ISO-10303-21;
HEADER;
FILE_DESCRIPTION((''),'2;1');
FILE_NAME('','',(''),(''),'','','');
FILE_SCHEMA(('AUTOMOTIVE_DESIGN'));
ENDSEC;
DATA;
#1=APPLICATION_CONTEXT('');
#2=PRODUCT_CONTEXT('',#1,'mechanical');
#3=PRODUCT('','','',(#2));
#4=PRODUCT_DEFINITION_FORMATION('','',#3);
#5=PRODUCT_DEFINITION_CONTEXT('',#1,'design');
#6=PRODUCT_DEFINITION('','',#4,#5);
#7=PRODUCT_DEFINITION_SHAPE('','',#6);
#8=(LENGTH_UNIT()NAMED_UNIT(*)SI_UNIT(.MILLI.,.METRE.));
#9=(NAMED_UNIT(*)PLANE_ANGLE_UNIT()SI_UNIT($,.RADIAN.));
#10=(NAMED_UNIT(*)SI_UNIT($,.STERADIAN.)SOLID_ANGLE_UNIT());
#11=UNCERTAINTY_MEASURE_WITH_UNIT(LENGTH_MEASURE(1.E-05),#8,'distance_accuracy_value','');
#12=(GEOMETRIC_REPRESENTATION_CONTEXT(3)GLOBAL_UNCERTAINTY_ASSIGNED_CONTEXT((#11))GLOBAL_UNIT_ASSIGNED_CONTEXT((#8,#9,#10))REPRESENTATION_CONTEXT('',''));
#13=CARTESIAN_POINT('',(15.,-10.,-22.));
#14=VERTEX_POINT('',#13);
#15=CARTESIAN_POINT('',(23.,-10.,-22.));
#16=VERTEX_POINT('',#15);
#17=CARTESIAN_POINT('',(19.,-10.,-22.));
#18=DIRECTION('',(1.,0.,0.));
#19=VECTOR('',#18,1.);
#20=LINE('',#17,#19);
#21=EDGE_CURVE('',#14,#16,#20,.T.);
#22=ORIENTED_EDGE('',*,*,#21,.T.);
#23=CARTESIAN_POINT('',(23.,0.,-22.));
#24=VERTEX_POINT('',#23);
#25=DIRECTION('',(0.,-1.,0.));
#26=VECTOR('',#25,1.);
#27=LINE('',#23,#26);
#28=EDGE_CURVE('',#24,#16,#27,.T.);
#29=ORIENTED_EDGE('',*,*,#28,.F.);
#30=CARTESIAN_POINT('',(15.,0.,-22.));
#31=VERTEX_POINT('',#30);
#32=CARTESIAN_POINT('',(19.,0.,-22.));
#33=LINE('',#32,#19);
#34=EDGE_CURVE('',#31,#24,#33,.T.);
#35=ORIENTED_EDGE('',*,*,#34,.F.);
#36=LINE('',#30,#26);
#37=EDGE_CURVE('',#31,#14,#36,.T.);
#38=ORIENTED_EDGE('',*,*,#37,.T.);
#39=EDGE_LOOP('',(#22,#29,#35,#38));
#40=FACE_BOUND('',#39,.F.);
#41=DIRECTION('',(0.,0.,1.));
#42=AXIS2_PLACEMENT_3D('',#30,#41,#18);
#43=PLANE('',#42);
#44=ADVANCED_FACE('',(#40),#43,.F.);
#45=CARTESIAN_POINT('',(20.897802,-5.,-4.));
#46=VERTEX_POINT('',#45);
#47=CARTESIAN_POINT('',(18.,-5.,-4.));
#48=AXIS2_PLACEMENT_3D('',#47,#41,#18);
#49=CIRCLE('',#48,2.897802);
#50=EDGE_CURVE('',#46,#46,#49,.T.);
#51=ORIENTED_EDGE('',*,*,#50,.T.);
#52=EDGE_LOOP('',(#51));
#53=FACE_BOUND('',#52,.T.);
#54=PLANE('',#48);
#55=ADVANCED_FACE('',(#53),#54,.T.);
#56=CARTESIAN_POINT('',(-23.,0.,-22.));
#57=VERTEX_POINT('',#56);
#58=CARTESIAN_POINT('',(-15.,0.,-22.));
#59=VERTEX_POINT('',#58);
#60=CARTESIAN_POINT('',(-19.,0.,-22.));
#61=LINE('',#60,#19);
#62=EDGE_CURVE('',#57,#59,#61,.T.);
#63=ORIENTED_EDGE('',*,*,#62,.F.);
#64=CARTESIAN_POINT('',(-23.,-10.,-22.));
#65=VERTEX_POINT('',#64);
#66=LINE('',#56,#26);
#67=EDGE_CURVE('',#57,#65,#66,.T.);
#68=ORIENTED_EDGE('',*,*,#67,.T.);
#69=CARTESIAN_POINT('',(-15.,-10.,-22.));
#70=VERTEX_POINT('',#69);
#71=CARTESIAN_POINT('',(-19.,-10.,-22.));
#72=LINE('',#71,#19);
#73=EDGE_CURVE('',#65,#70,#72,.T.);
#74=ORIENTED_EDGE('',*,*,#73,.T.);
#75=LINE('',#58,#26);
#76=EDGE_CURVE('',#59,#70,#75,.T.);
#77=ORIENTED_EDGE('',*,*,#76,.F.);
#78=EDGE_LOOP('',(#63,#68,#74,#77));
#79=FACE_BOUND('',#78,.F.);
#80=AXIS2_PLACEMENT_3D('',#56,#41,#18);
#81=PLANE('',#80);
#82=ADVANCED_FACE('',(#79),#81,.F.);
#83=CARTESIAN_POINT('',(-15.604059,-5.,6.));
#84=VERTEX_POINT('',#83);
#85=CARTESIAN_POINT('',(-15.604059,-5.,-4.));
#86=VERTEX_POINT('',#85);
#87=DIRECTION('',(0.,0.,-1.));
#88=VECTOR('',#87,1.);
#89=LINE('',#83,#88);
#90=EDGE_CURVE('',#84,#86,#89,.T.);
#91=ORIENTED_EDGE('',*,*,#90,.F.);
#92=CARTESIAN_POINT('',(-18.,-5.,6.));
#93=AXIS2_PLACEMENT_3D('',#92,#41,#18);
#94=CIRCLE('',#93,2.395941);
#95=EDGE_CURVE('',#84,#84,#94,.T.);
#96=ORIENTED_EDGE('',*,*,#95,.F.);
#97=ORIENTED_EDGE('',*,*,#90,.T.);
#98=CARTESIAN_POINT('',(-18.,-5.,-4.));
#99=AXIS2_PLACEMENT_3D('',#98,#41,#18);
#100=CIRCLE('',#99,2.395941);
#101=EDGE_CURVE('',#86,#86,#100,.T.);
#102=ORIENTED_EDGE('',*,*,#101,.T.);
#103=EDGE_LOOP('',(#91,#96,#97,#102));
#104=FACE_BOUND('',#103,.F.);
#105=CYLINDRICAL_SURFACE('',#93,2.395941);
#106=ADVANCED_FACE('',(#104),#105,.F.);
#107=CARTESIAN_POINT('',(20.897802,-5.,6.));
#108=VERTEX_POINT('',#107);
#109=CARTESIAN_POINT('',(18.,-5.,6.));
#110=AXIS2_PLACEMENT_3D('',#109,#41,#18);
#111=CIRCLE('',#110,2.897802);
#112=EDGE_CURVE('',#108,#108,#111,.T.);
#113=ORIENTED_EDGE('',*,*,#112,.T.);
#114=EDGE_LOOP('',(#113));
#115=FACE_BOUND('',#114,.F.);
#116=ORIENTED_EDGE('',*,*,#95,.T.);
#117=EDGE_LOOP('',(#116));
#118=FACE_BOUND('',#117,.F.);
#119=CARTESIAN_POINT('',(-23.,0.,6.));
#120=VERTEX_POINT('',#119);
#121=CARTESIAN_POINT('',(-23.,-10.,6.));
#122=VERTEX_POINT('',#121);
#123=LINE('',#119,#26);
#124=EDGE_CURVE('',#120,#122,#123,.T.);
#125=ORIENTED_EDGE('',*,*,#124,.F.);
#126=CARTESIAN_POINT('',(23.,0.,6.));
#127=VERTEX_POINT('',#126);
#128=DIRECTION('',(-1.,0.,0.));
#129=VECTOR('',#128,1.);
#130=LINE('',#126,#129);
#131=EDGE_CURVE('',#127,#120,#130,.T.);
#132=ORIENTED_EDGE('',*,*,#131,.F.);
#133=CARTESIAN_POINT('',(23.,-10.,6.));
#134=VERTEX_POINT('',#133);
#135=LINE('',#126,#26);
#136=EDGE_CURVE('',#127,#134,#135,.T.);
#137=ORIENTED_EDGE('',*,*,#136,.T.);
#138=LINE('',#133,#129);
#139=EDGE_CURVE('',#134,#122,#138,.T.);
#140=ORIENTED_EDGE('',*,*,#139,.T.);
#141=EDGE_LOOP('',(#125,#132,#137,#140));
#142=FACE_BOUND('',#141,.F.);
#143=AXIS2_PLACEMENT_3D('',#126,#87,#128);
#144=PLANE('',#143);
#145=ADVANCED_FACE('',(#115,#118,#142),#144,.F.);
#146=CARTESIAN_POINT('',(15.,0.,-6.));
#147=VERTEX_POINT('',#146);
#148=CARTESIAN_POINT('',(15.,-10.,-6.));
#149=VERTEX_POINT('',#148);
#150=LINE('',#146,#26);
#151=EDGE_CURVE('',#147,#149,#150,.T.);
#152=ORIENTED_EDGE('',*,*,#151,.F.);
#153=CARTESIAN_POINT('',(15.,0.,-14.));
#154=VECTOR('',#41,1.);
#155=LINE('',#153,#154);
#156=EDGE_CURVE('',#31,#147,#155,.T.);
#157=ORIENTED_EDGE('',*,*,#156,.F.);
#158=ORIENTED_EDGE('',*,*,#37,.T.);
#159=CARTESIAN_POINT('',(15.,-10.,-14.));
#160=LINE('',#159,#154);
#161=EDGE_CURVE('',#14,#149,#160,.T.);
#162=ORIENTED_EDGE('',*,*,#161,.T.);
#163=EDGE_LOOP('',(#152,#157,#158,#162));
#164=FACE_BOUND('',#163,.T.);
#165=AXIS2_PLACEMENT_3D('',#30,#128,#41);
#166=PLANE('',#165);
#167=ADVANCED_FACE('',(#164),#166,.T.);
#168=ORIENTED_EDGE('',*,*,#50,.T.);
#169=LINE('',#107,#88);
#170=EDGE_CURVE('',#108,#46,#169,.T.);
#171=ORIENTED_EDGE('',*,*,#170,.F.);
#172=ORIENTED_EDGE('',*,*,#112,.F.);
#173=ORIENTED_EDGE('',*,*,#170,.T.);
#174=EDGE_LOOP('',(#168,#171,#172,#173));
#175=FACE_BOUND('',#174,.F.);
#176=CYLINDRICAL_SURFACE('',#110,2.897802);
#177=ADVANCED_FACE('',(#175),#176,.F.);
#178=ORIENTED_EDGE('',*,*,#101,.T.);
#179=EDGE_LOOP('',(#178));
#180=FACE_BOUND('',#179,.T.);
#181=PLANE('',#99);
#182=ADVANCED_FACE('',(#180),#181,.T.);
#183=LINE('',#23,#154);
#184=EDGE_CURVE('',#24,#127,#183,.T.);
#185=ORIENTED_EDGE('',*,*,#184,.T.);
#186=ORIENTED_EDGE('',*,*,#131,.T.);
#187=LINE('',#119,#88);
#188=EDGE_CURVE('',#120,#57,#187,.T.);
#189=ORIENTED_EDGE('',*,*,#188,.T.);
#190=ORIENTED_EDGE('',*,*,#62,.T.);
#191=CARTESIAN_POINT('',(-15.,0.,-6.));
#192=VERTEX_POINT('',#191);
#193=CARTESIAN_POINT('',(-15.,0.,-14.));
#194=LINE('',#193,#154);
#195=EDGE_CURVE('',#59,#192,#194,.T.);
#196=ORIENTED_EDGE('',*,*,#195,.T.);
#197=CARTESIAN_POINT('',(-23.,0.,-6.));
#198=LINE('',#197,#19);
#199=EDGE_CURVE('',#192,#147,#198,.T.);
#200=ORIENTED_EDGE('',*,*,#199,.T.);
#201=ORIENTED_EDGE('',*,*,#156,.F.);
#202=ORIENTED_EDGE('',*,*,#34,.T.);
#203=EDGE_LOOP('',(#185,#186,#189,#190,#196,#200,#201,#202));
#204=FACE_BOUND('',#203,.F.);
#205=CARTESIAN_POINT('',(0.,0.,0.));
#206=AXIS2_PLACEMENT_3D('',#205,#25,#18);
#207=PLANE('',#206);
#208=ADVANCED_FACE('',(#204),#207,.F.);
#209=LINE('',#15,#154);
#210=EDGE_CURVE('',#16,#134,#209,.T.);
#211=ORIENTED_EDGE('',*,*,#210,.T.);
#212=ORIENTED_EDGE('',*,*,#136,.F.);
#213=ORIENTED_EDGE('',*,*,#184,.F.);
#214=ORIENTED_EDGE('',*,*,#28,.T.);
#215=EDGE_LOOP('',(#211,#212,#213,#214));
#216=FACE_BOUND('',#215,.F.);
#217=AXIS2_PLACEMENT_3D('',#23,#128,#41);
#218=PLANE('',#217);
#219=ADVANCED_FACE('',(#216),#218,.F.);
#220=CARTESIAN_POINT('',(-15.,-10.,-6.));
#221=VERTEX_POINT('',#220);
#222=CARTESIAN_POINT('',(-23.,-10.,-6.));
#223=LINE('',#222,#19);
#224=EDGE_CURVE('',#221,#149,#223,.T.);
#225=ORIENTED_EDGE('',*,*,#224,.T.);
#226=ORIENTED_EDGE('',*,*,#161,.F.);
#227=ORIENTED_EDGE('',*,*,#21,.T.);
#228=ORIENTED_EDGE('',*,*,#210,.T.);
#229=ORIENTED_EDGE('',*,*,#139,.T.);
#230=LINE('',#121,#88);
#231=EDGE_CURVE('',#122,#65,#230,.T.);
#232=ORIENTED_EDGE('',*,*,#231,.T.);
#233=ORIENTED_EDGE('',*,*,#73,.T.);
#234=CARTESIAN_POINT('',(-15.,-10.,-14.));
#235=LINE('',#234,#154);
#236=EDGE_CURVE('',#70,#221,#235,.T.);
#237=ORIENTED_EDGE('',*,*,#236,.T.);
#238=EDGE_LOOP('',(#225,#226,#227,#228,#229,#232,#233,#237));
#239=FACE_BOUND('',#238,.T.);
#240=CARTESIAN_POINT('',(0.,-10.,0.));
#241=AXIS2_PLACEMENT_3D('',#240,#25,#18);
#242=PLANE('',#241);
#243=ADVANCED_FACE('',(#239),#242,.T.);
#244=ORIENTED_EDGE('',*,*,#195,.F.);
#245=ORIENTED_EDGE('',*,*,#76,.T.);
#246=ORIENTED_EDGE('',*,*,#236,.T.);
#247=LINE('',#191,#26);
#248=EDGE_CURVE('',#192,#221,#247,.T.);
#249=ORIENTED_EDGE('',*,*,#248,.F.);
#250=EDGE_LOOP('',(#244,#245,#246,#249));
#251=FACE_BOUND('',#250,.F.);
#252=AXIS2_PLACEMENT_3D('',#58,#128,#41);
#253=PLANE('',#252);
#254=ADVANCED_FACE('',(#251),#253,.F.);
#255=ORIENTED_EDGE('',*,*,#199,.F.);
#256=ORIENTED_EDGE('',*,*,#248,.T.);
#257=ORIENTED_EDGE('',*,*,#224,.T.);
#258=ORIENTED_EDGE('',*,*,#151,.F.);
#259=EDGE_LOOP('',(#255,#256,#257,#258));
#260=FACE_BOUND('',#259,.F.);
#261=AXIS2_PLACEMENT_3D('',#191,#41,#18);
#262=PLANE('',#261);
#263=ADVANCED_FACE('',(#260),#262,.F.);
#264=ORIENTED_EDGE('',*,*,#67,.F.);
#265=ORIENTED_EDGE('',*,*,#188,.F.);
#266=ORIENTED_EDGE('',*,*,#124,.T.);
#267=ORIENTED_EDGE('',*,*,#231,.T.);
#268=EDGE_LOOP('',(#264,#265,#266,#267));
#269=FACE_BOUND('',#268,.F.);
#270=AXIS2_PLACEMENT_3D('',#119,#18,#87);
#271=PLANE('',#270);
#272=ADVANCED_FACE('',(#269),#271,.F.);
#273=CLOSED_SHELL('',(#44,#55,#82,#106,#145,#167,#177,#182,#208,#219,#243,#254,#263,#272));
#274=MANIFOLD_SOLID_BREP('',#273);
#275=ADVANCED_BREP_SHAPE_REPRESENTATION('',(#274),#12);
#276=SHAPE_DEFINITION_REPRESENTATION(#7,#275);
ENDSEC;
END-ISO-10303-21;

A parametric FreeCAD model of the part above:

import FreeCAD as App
import Part
import Sketcher

V = App.Vector
Q = App.Units.Quantity

doc = App.newDocument("Part")
params = doc.addObject("Spreadsheet::Sheet", "Params")
for row, (alias, value) in enumerate([
    ("sketch1_width", "46 mm"),
    ("sketch1_width2", "8 mm"),
    ("sketch1_height", "28 mm"),
    ("sketch1_height2", "16 mm"),
    ("pad1_length", "10 mm"),
    ("pocket1_length", "10 mm"),
], start=1):
    params.set(f"A{row}", alias)
    params.set(f"B{row}", "=" + value)
    params.setAlias(f"B{row}", alias)

body = doc.addObject("PartDesign::Body", "Body")

# Sketch on XZ plane
sketch1 = body.newObject("Sketcher::SketchObject", "Sketch")
sketch1.AttachmentSupport = (doc.getObject("XZ_Plane"), [""])
sketch1.MapMode = "FlatFace"
sketch1.addGeometry(Part.LineSegment(V(23, 6, 0), V(-23, 6, 0)), False)
sketch1.addGeometry(Part.LineSegment(V(-23, 6, 0), V(-23, -22, 0)), False)
sketch1.addGeometry(Part.LineSegment(V(-23, -22, 0), V(-15, -22, 0)), False)
sketch1.addGeometry(Part.LineSegment(V(-15, -22, 0), V(-15, -6, 0)), False)
sketch1.addGeometry(Part.LineSegment(V(-15, -6, 0), V(15, -6, 0)), False)
sketch1.addGeometry(Part.LineSegment(V(15, -6, 0), V(15, -22, 0)), False)
sketch1.addGeometry(Part.LineSegment(V(15, -22, 0), V(23, -22, 0)), False)
sketch1.addGeometry(Part.LineSegment(V(23, -22, 0), V(23, 6, 0)), False)
sketch1.addConstraint(Sketcher.Constraint("Coincident", 0, 2, 1, 1))
sketch1.addConstraint(Sketcher.Constraint("Coincident", 1, 2, 2, 1))
sketch1.addConstraint(Sketcher.Constraint("Coincident", 2, 2, 3, 1))
sketch1.addConstraint(Sketcher.Constraint("Coincident", 3, 2, 4, 1))
sketch1.addConstraint(Sketcher.Constraint("Coincident", 4, 2, 5, 1))
sketch1.addConstraint(Sketcher.Constraint("Coincident", 5, 2, 6, 1))
sketch1.addConstraint(Sketcher.Constraint("Coincident", 6, 2, 7, 1))
sketch1.addConstraint(Sketcher.Constraint("Coincident", 7, 2, 0, 1))
sketch1.addConstraint(Sketcher.Constraint("Horizontal", 0))
sketch1.addConstraint(Sketcher.Constraint("Vertical", 1))
sketch1.addConstraint(Sketcher.Constraint("Horizontal", 2))
sketch1.addConstraint(Sketcher.Constraint("Vertical", 3))
sketch1.addConstraint(Sketcher.Constraint("Horizontal", 4))
sketch1.addConstraint(Sketcher.Constraint("Vertical", 5))
sketch1.addConstraint(Sketcher.Constraint("Horizontal", 6))
sketch1.addConstraint(Sketcher.Constraint("Vertical", 7))
sketch1.addConstraint(Sketcher.Constraint("Symmetric", 2, 2, 5, 2, -2))
sketch1.addConstraint(Sketcher.Constraint("Equal", 2, 6))
sketch1.addConstraint(Sketcher.Constraint("DistanceX", 0, 2, 0, 1, Q("46 mm")))
sketch1.addConstraint(Sketcher.Constraint("DistanceX", 2, 1, 2, 2, Q("8 mm")))
sketch1.addConstraint(Sketcher.Constraint("DistanceY", 1, 2, 1, 1, Q("28 mm")))
sketch1.addConstraint(Sketcher.Constraint("DistanceY", 3, 1, 3, 2, Q("16 mm")))
sketch1.addConstraint(Sketcher.Constraint("DistanceY", -1, 1, 0, 2, Q("6 mm")))
sketch1.setExpression("Constraints[18]", "Params.sketch1_width")
sketch1.setExpression("Constraints[19]", "Params.sketch1_width2")
sketch1.setExpression("Constraints[20]", "Params.sketch1_height")
sketch1.setExpression("Constraints[21]", "Params.sketch1_height2")
pad1 = body.newObject("PartDesign::Pad", "Pad")
pad1.Profile = sketch1
pad1.setExpression("Length", "Params.pad1_length")

# Sketch on XY plane
sketch2 = body.newObject("Sketcher::SketchObject", "Sketch001")
sketch2.AttachmentSupport = (doc.getObject("XY_Plane"), [""])
sketch2.MapMode = "FlatFace"
sketch2.AttachmentOffset = App.Placement(V(0, 0, 6), App.Rotation())
sketch2.addGeometry(Part.Circle(V(-18, -5, 0), V(0, 0, 1), 2.4), False)
sketch2.addGeometry(Part.Circle(V(18, -5, 0), V(0, 0, 1), 2.9), False)
sketch2.addConstraint(Sketcher.Constraint("Symmetric", 0, 3, 1, 3, -2))
sketch2.addConstraint(Sketcher.Constraint("DistanceX", 0, 3, -1, 1, Q("18 mm")))
sketch2.addConstraint(Sketcher.Constraint("DistanceY", 0, 3, -1, 1, Q("5 mm")))
sketch2.addConstraint(Sketcher.Constraint("Diameter", 0, Q("4.791882 mm")))
sketch2.addConstraint(Sketcher.Constraint("Diameter", 1, Q("5.795604 mm")))
pocket1 = body.newObject("PartDesign::Pocket", "Pocket")
pocket1.Profile = sketch2
pocket1.setExpression("Length", "Params.pocket1_length")

doc.recompute()
